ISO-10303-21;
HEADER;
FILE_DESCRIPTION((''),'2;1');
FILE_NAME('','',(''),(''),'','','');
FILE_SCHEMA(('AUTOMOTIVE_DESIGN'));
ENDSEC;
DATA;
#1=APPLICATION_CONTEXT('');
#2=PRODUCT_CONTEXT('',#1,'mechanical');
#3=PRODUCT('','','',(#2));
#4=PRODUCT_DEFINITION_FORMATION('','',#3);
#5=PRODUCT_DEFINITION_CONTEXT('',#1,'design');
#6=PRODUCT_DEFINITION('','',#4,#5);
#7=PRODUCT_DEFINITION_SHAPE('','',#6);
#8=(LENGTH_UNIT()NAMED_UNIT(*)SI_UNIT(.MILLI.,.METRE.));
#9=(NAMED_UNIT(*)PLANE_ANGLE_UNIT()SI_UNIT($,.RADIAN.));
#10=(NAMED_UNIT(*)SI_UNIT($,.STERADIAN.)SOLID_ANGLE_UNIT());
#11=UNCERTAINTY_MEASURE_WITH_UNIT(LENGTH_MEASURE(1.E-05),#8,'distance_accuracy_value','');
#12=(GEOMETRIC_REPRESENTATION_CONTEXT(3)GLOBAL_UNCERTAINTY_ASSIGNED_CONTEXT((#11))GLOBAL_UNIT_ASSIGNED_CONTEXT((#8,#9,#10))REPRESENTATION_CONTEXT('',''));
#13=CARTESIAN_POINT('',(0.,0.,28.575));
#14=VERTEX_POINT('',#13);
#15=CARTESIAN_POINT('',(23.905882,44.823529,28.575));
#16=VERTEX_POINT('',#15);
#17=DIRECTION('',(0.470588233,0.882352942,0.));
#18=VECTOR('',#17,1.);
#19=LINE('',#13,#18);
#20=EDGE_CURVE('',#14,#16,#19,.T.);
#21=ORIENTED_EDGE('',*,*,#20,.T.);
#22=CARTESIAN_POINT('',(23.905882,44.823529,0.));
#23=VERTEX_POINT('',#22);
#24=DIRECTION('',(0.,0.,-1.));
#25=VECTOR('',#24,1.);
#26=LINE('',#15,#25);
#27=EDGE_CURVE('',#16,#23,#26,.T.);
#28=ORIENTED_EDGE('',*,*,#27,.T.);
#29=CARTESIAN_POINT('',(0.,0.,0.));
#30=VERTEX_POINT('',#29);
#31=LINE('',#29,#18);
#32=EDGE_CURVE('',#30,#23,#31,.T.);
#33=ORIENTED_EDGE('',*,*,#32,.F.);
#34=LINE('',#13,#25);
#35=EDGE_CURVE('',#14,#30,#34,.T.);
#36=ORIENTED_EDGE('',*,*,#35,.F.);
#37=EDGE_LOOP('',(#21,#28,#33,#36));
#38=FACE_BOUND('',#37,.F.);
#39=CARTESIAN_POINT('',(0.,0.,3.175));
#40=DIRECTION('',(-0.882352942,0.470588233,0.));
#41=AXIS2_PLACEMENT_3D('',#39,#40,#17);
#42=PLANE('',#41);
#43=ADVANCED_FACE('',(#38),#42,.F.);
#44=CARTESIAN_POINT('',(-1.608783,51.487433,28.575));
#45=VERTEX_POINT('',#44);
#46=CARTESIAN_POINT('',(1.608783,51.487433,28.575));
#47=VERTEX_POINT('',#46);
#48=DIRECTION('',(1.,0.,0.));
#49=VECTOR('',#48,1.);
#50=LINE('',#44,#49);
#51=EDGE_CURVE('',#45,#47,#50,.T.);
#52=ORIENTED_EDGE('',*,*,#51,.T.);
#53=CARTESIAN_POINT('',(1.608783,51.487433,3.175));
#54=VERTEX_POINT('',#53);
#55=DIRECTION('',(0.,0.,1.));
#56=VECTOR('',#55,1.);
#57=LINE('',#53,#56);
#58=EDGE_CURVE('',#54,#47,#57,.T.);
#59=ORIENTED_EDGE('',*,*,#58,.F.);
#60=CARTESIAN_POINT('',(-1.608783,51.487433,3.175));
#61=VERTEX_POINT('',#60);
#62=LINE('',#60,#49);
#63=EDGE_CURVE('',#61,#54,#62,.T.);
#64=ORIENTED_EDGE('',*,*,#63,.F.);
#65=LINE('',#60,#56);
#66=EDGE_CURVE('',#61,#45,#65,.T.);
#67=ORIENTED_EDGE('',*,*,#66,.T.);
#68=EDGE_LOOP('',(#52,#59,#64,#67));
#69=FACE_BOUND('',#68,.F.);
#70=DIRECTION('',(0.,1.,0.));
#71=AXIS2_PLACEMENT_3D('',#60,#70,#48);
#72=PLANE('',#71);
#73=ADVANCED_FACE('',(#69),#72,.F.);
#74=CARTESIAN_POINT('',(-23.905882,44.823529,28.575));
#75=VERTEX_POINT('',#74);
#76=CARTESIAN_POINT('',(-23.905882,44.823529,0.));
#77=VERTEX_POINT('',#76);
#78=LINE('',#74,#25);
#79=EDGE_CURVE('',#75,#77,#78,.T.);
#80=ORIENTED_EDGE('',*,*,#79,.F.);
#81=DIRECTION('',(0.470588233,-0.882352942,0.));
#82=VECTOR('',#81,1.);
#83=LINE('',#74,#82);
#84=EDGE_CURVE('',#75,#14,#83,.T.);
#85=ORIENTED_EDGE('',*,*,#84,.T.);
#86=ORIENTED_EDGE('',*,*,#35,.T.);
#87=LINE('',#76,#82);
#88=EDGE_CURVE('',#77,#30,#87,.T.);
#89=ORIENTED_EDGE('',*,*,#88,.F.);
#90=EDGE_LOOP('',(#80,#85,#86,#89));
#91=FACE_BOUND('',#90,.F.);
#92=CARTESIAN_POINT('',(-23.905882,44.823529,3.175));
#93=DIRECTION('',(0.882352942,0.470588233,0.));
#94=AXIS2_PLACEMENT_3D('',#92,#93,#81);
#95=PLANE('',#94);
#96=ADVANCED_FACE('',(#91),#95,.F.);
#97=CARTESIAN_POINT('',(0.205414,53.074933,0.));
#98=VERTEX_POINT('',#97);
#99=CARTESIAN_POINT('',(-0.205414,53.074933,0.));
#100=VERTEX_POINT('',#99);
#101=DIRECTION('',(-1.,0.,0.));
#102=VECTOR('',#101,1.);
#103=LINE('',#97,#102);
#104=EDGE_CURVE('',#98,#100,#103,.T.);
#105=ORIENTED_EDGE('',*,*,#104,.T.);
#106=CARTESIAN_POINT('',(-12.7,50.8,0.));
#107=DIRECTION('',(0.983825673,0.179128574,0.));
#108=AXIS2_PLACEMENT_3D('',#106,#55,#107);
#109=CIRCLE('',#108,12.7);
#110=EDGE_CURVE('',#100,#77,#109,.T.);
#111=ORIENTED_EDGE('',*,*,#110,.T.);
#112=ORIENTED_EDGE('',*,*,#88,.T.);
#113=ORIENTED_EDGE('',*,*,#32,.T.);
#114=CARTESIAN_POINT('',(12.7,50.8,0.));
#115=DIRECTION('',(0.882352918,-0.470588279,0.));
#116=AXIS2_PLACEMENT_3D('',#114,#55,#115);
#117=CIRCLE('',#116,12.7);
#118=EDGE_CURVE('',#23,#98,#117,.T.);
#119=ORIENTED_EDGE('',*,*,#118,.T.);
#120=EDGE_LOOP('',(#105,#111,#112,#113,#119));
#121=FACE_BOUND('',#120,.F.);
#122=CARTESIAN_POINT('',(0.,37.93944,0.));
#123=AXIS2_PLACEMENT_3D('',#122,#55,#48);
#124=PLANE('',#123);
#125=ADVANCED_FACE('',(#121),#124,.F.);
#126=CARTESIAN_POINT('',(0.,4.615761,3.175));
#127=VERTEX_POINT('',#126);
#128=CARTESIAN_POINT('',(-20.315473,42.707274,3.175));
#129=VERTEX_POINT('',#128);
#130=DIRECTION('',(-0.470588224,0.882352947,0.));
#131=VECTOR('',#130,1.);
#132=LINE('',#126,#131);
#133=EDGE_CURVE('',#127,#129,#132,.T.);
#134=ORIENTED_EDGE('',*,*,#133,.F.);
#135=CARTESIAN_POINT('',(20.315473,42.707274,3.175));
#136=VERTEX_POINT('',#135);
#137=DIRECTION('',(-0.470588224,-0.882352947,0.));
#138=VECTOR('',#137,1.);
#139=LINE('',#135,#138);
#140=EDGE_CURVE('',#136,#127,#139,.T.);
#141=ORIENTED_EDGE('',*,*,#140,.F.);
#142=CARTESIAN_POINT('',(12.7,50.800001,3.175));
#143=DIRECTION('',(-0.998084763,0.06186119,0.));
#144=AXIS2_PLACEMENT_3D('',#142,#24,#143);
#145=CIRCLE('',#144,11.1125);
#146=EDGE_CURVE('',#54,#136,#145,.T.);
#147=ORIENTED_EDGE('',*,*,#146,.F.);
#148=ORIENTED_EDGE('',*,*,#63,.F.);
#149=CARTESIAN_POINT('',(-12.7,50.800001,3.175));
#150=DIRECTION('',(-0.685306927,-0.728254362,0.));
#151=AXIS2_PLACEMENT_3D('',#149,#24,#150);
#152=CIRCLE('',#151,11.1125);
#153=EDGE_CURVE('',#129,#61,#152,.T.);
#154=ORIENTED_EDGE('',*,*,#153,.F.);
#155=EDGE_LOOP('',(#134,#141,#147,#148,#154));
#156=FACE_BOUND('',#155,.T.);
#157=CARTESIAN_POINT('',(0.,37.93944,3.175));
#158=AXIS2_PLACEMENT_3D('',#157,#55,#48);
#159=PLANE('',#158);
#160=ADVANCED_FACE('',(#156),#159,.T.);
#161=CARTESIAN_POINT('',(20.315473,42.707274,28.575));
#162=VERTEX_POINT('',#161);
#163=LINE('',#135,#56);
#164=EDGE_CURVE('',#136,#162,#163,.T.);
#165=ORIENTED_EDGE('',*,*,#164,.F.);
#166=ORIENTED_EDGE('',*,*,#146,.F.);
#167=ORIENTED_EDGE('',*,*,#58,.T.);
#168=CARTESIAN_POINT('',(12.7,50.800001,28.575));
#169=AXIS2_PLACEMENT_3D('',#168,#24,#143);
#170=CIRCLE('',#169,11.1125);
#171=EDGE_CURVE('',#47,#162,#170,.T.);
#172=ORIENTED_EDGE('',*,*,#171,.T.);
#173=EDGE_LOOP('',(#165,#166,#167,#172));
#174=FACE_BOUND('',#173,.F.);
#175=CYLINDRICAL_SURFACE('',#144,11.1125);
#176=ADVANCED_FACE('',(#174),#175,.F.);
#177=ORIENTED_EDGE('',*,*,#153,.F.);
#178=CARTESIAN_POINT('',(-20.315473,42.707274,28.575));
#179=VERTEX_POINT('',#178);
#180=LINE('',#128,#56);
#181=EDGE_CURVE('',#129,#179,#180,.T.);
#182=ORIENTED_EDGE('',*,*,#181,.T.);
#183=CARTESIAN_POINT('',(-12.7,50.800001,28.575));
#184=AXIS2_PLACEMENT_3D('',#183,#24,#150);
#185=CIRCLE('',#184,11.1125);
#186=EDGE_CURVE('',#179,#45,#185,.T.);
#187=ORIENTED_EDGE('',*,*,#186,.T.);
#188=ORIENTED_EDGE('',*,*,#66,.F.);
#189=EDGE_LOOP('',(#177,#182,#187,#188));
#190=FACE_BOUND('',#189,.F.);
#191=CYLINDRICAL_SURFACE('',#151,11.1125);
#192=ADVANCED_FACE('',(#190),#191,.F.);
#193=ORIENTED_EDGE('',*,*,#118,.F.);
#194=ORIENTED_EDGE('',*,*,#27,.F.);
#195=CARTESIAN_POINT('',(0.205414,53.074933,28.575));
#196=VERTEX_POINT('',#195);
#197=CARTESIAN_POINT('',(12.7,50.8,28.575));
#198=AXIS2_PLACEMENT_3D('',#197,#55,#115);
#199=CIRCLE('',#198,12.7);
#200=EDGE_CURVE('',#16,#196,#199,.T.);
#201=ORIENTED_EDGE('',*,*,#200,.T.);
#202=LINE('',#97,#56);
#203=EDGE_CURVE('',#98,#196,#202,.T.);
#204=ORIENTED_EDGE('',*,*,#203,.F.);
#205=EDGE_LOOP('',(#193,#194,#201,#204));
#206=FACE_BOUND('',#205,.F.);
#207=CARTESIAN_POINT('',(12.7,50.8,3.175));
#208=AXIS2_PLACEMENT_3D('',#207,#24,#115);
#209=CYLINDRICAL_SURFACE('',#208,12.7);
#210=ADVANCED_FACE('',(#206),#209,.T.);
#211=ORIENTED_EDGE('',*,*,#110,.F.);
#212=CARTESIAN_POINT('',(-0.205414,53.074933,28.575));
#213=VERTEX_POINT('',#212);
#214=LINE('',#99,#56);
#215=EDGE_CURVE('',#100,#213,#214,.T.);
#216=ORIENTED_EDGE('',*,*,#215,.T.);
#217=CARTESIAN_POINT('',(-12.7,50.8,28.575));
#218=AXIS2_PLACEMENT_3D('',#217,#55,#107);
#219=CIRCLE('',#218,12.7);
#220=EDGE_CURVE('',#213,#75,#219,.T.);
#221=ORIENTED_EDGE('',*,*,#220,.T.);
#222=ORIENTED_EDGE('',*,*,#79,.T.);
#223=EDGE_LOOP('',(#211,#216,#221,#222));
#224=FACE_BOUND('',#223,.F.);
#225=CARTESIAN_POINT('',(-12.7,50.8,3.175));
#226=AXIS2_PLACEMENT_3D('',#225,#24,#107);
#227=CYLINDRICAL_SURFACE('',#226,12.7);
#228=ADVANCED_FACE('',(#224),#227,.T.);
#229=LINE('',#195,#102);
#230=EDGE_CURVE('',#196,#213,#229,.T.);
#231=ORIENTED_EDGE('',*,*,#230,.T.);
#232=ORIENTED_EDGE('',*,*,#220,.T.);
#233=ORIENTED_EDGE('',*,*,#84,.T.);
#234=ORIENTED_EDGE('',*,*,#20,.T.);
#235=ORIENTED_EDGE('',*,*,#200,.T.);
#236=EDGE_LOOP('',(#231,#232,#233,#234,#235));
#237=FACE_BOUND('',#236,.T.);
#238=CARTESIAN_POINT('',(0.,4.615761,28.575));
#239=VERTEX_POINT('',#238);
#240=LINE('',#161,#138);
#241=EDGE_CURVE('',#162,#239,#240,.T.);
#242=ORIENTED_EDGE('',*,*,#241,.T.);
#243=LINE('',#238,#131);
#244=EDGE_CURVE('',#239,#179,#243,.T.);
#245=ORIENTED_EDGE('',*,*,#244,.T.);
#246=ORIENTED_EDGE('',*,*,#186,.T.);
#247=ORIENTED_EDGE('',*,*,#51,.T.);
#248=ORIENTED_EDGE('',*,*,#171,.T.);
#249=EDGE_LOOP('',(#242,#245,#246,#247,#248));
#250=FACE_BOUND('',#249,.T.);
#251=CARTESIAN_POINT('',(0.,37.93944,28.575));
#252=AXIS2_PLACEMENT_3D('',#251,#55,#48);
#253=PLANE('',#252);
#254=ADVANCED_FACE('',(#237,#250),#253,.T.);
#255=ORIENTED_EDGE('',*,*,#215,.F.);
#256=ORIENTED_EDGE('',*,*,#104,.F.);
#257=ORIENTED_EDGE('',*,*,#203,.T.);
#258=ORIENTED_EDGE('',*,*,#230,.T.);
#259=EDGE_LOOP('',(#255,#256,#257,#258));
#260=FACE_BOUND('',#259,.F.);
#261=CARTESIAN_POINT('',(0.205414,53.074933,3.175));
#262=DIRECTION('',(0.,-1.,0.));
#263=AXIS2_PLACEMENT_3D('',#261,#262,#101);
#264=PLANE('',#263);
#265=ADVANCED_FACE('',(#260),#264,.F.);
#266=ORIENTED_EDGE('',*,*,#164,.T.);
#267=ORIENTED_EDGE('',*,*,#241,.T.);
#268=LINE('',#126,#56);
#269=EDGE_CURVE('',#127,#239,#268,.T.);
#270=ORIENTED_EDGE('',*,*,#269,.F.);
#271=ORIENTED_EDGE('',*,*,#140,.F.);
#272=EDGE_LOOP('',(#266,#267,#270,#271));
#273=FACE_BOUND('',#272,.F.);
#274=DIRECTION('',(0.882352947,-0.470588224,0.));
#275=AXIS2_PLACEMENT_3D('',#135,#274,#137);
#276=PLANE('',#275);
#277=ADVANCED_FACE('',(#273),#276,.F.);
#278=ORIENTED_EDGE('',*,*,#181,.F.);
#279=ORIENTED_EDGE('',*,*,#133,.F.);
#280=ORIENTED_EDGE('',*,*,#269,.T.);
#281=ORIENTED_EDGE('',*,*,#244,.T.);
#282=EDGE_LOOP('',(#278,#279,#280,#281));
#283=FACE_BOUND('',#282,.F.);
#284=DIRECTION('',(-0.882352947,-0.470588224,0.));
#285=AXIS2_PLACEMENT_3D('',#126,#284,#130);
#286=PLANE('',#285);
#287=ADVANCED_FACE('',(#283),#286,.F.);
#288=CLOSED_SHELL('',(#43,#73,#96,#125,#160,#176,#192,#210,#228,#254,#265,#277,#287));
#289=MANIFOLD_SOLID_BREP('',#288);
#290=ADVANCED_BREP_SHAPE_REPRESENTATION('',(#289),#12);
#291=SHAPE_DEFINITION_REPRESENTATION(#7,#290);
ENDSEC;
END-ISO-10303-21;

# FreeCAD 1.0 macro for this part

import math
import FreeCAD as App
import Part
import Sketcher
Q = App.Units.Quantity

doc = App.newDocument("Part")
body = doc.addObject("PartDesign::Body", "Body")

# Sketch on XY plane
sketch1 = body.newObject("Sketcher::SketchObject", "Sketch")
sketch1.AttachmentSupport = (doc.getObject("XY_Plane"), [""])
sketch1.MapMode = "FlatFace"
sketch1.addGeometry(Part.LineSegment(App.Vector(0.205414, 53.074933, 0), App.Vector(-0.205414, 53.074933, 0)), False)
sketch1.addGeometry(Part.ArcOfCircle(Part.Circle(App.Vector(-12.7, 50.8, 0), App.Vector(0, 0, 1), 12.7), math.radians(10.319006), math.radians(208.07249)), False)
sketch1.addGeometry(Part.LineSegment(App.Vector(-23.905882, 44.823529, 0), App.Vector(0, 0, 0)), False)
sketch1.addGeometry(Part.LineSegment(App.Vector(0, 0, 0), App.Vector(23.905882, 44.823529, 0)), False)
sketch1.addGeometry(Part.ArcOfCircle(Part.Circle(App.Vector(12.7, 50.8, 0), App.Vector(0, 0, 1), 12.7), math.radians(-28.07249), math.radians(169.680994)), False)
sketch1.addConstraint(Sketcher.Constraint("Coincident", 0, 2, 1, 1))
sketch1.addConstraint(Sketcher.Constraint("Tangent", 1, 2, 2, 1))
sketch1.addConstraint(Sketcher.Constraint("Coincident", 2, 2, 3, 1))
sketch1.addConstraint(Sketcher.Constraint("Tangent", 3, 2, 4, 1))
sketch1.addConstraint(Sketcher.Constraint("Coincident", 4, 2, 0, 1))
sketch1.addConstraint(Sketcher.Constraint("Horizontal", 0))
sketch1.addConstraint(Sketcher.Constraint("Coincident", 2, 2, -1, 1))
sketch1.addConstraint(Sketcher.Constraint("Equal", 1, 4))
sketch1.addConstraint(Sketcher.Constraint("Symmetric", 1, 3, 4, 3, -2))
sketch1.addConstraint(Sketcher.Constraint("Radius", 1, Q("0.5 in")))
sketch1.addConstraint(Sketcher.Constraint("Distance", 2, Q("2 in")))
sketch1.addConstraint(Sketcher.Constraint("DistanceY", -1, 1, 1, 3, Q("2 in")))
sketch1.addConstraint(Sketcher.Constraint("DistanceX", 0, 2, 0, 1, 0.410828))
pad1 = body.newObject("PartDesign::Pad", "Pad")
pad1.Profile = sketch1
pad1.Length = Q("0.125 in")

# Sketch on XY plane
sketch2 = body.newObject("Sketcher::SketchObject", "Sketch001")
sketch2.AttachmentSupport = (doc.getObject("XY_Plane"), [""])
sketch2.MapMode = "FlatFace"
sketch2.AttachmentOffset = App.Placement(App.Vector(0, 0, 0.125 * 25.4), App.Rotation())
sketch2.addGeometry(Part.ArcOfCircle(Part.Circle(App.Vector(12.7, 50.8, 0), App.Vector(0, 0, 1), 12.7), math.radians(-28.07249), math.radians(169.680994)), False)
sketch2.addGeometry(Part.LineSegment(App.Vector(0.205414, 53.074933, 0), App.Vector(-0.205414, 53.074933, 0)), False)
sketch2.addGeometry(Part.ArcOfCircle(Part.Circle(App.Vector(-12.7, 50.8, 0), App.Vector(0, 0, 1), 12.7), math.radians(10.319006), math.radians(208.07249)), False)
sketch2.addGeometry(Part.LineSegment(App.Vector(-23.905882, 44.823529, 0), App.Vector(0, 0, 0)), False)
sketch2.addGeometry(Part.LineSegment(App.Vector(0, 0, 0), App.Vector(23.905882, 44.823529, 0)), False)
sketch2.addGeometry(Part.LineSegment(App.Vector(0, 4.615761, 0), App.Vector(-20.315473, 42.707274, 0)), False)
sketch2.addGeometry(Part.ArcOfCircle(Part.Circle(App.Vector(-12.7, 50.800001, 0), App.Vector(0, 0, 1), 11.1125), math.radians(3.54665), math.radians(226.74025)), False)
sketch2.addGeometry(Part.LineSegment(App.Vector(-1.608783, 51.487433, 0), App.Vector(1.608783, 51.487433, 0)), False)
sketch2.addGeometry(Part.ArcOfCircle(Part.Circle(App.Vector(12.7, 50.800001, 0), App.Vector(0, 0, 1), 11.1125), math.radians(-46.74025), math.radians(176.45335)), False)
sketch2.addGeometry(Part.LineSegment(App.Vector(20.315473, 42.707274, 0), App.Vector(0, 4.615761, 0)), False)
sketch2.addConstraint(Sketcher.Constraint("Coincident", 0, 2, 1, 1))
sketch2.addConstraint(Sketcher.Constraint("Coincident", 1, 2, 2, 1))
sketch2.addConstraint(Sketcher.Constraint("Tangent", 2, 2, 3, 1))
sketch2.addConstraint(Sketcher.Constraint("Coincident", 3, 2, 4, 1))
sketch2.addConstraint(Sketcher.Constraint("Tangent", 4, 2, 0, 1))
sketch2.addConstraint(Sketcher.Constraint("Coincident", 5, 2, 6, 2))
sketch2.addConstraint(Sketcher.Constraint("Coincident", 6, 1, 7, 1))
sketch2.addConstraint(Sketcher.Constraint("Coincident", 7, 2, 8, 2))
sketch2.addConstraint(Sketcher.Constraint("Coincident", 8, 1, 9, 1))
sketch2.addConstraint(Sketcher.Constraint("Coincident", 9, 2, 5, 1))
sketch2.addConstraint(Sketcher.Constraint("Horizontal", 1))
sketch2.addConstraint(Sketcher.Constraint("Horizontal", 7))
sketch2.addConstraint(Sketcher.Constraint("Coincident", 3, 2, -1, 1))
sketch2.addConstraint(Sketcher.Constraint("Coincident", 6, 3, 2, 3))
sketch2.addConstraint(Sketcher.Constraint("Coincident", 8, 3, 0, 3))
sketch2.addConstraint(Sketcher.Constraint("Equal", 0, 2))
sketch2.addConstraint(Sketcher.Constraint("Equal", 6, 8))
sketch2.addConstraint(Sketcher.Constraint("Symmetric", 0, 3, 2, 3, -2))
sketch2.addConstraint(Sketcher.Constraint("PointOnObject", 9, 2, -2))
sketch2.addConstraint(Sketcher.Constraint("Parallel", 3, 5))
sketch2.addConstraint(Sketcher.Constraint("Parallel", 4, 9))
sketch2.addConstraint(Sketcher.Constraint("Radius", 0, Q("0.5 in")))
sketch2.addConstraint(Sketcher.Constraint("Distance", 3, Q("2 in")))
sketch2.addConstraint(Sketcher.Constraint("DistanceY", -1, 1, 0, 3, Q("2 in")))
sketch2.addConstraint(Sketcher.Constraint("Radius", 6, Q("0.4375 in")))
sketch2.addConstraint(Sketcher.Constraint("DistanceY", 6, 1, 1, 2, Q("0.0625 in")))
sketch2.addConstraint(Sketcher.Constraint("DistanceX", 1, 2, 1, 1, 0.410828))
sketch2.addConstraint(Sketcher.Constraint("Distance", 5, 43.170381))
pad2 = body.newObject("PartDesign::Pad", "Pad001")
pad2.Profile = sketch2
pad2.Length = Q("1 in")

doc.recompute()
